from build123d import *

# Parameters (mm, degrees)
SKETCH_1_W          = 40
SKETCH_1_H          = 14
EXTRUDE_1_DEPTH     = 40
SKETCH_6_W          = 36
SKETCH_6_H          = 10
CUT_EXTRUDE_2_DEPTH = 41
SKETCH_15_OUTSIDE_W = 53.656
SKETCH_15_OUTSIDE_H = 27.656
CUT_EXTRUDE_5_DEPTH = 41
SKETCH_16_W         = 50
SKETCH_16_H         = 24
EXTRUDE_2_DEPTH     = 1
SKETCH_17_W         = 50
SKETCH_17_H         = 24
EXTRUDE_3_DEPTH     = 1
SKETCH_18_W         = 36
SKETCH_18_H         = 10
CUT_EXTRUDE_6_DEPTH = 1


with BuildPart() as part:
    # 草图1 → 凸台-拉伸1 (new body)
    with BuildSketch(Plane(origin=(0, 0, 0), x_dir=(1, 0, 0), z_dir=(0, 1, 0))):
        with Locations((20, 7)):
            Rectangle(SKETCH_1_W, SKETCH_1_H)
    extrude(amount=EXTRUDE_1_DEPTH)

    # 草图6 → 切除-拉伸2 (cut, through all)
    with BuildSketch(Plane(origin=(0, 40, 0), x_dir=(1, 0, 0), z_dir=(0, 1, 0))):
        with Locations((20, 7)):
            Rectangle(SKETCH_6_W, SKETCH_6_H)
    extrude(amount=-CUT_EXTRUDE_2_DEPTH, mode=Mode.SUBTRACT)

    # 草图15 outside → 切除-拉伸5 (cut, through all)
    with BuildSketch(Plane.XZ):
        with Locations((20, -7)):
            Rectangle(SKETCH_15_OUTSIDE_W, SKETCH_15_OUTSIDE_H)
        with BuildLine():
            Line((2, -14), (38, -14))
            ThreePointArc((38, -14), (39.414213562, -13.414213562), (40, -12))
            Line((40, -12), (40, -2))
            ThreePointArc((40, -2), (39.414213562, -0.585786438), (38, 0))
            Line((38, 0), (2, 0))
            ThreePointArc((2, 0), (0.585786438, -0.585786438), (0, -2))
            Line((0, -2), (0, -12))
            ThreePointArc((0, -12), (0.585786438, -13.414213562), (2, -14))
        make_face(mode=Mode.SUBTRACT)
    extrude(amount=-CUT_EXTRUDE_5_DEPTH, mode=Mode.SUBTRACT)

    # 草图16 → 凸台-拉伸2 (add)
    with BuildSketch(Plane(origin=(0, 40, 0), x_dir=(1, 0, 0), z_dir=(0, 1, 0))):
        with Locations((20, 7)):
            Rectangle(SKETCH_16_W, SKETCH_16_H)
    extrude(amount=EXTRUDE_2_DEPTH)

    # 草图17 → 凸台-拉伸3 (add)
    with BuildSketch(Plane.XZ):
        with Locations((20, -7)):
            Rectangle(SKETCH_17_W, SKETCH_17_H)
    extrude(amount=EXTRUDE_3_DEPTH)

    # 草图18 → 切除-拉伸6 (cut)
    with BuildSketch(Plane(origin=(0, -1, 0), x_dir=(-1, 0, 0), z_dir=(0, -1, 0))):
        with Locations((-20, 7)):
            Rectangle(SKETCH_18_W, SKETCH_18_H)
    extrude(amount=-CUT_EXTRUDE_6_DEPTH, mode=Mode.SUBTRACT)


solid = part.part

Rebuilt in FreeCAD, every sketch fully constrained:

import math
import FreeCAD as App
import Part
import Sketcher

V = App.Vector

doc = App.newDocument("Part")
body = doc.addObject("PartDesign::Body", "Body")

sketch1 = doc.addObject("Sketcher::SketchObject", "Sketch")
body.addObject(sketch1)
sketch1.AttachmentSupport = (doc.XZ_Plane, [""])
sketch1.MapMode = "FlatFace"
sketch1.addGeometry([
    Part.LineSegment(V(0, -14, 0), V(0, 0, 0)),
    Part.LineSegment(V(0, 0, 0), V(40, 0, 0)),
    Part.LineSegment(V(40, 0, 0), V(40, -14, 0)),
    Part.LineSegment(V(40, -14, 0), V(0, -14, 0)),
], False)
sketch1.addConstraint([
    Sketcher.Constraint("Coincident", 0, 2, 1, 1),
    Sketcher.Constraint("Coincident", 1, 2, 2, 1),
    Sketcher.Constraint("Coincident", 2, 2, 3, 1),
    Sketcher.Constraint("Coincident", 3, 2, 0, 1),
    Sketcher.Constraint("Vertical", 0),
    Sketcher.Constraint("Horizontal", 1),
    Sketcher.Constraint("Vertical", 2),
    Sketcher.Constraint("Horizontal", 3),
    Sketcher.Constraint("Coincident", 0, 2, -1, 1),
    Sketcher.Constraint("DistanceX", 1, 1, 1, 2, 40.0),
    Sketcher.Constraint("DistanceY", 0, 1, 0, 2, 14.0),
])
pad1 = doc.addObject("PartDesign::Pad", "Pad")
body.addObject(pad1)
pad1.Profile = sketch1
pad1.Length = 40
pad1.Reversed = True

sketch2 = doc.addObject("Sketcher::SketchObject", "Sketch001")
body.addObject(sketch2)
sketch2.AttachmentSupport = (doc.XZ_Plane, [""])
sketch2.MapMode = "FlatFace"
sketch2.AttachmentOffset = App.Placement(V(0, 0, -40), App.Rotation())
sketch2.addGeometry([
    Part.LineSegment(V(2, -12, 0), V(2, -2, 0)),
    Part.LineSegment(V(2, -2, 0), V(38, -2, 0)),
    Part.LineSegment(V(38, -2, 0), V(38, -12, 0)),
    Part.LineSegment(V(38, -12, 0), V(2, -12, 0)),
], False)
sketch2.addConstraint([
    Sketcher.Constraint("Coincident", 0, 2, 1, 1),
    Sketcher.Constraint("Coincident", 1, 2, 2, 1),
    Sketcher.Constraint("Coincident", 2, 2, 3, 1),
    Sketcher.Constraint("Coincident", 3, 2, 0, 1),
    Sketcher.Constraint("Vertical", 0),
    Sketcher.Constraint("Horizontal", 1),
    Sketcher.Constraint("Vertical", 2),
    Sketcher.Constraint("Horizontal", 3),
    Sketcher.Constraint("DistanceX", 1, 1, 1, 2, 36.0),
    Sketcher.Constraint("DistanceY", 0, 1, 0, 2, 10.0),
    Sketcher.Constraint("DistanceX", -1, 1, 0, 2, 2.0),
    Sketcher.Constraint("DistanceY", 0, 2, -1, 1, 2.0),
])
pocket1 = doc.addObject("PartDesign::Pocket", "Pocket")
body.addObject(pocket1)
pocket1.Profile = sketch2
pocket1.Type = "ThroughAll"
pocket1.Reversed = True

sketch3 = doc.addObject("Sketcher::SketchObject", "Sketch002")
body.addObject(sketch3)
sketch3.AttachmentSupport = (doc.XZ_Plane, [""])
sketch3.MapMode = "FlatFace"
sketch3.addGeometry([
    Part.LineSegment(V(-6.828, 6.828, 0), V(-6.828, -20.828, 0)),
    Part.LineSegment(V(-6.828, -20.828, 0), V(46.828, -20.828, 0)),
    Part.LineSegment(V(46.828, -20.828, 0), V(46.828, 6.828, 0)),
    Part.LineSegment(V(46.828, 6.828, 0), V(-6.828, 6.828, 0)),
    Part.LineSegment(V(38, -14, 0), V(2, -14, 0)),
    Part.ArcOfCircle(Part.Circle(V(2, -12, 0), V(0, 0, 1), 2), math.radians(-180), math.radians(-90)),
    Part.LineSegment(V(0, -12, 0), V(0, -2, 0)),
    Part.ArcOfCircle(Part.Circle(V(2, -2, 0), V(0, 0, 1), 2), math.radians(90), math.radians(180)),
    Part.LineSegment(V(2, 0, 0), V(38, 0, 0)),
    Part.ArcOfCircle(Part.Circle(V(38, -2, 0), V(0, 0, 1), 2), math.radians(0), math.radians(90)),
    Part.LineSegment(V(40, -2, 0), V(40, -12, 0)),
    Part.ArcOfCircle(Part.Circle(V(38, -12, 0), V(0, 0, 1), 2), math.radians(-90), math.radians(0)),
], False)
sketch3.addConstraint([
    Sketcher.Constraint("Coincident", 0, 2, 1, 1),
    Sketcher.Constraint("Coincident", 1, 2, 2, 1),
    Sketcher.Constraint("Coincident", 2, 2, 3, 1),
    Sketcher.Constraint("Coincident", 3, 2, 0, 1),
    Sketcher.Constraint("Tangent", 4, 2, 5, 2),
    Sketcher.Constraint("Tangent", 5, 1, 6, 1),
    Sketcher.Constraint("Tangent", 6, 2, 7, 2),
    Sketcher.Constraint("Tangent", 7, 1, 8, 1),
    Sketcher.Constraint("Tangent", 8, 2, 9, 2),
    Sketcher.Constraint("Tangent", 9, 1, 10, 1),
    Sketcher.Constraint("Tangent", 10, 2, 11, 2),
    Sketcher.Constraint("Tangent", 11, 1, 4, 1),
    Sketcher.Constraint("Vertical", 0),
    Sketcher.Constraint("Horizontal", 1),
    Sketcher.Constraint("Vertical", 2),
    Sketcher.Constraint("Horizontal", 3),
    Sketcher.Constraint("Horizontal", 4),
    Sketcher.Constraint("Vertical", 6),
    Sketcher.Constraint("Horizontal", 8),
    Sketcher.Constraint("Vertical", 10),
    Sketcher.Constraint("Equal", 5, 7),
    Sketcher.Constraint("Equal", 7, 9),
    Sketcher.Constraint("Equal", 9, 11),
    Sketcher.Constraint("PointOnObject", 5, 1, -2),
    Sketcher.Constraint("PointOnObject", 7, 1, -1),
    Sketcher.Constraint("Radius", 5, 2.0),
    Sketcher.Constraint("DistanceX", 4, 2, 4, 1, 36.0),
    Sketcher.Constraint("DistanceY", 6, 1, 6, 2, 10.0),
    Sketcher.Constraint("DistanceX", 1, 1, 1, 2, 53.656),
    Sketcher.Constraint("DistanceY", 0, 2, 0, 1, 27.656),
    Sketcher.Constraint("DistanceX", 0, 2, -1, 1, 6.828),
    Sketcher.Constraint("DistanceY", 0, 2, -1, 1, 20.828),
])
pocket2 = doc.addObject("PartDesign::Pocket", "Pocket001")
body.addObject(pocket2)
pocket2.Profile = sketch3
pocket2.Type = "ThroughAll"

sketch4 = doc.addObject("Sketcher::SketchObject", "Sketch003")
body.addObject(sketch4)
sketch4.AttachmentSupport = (doc.XZ_Plane, [""])
sketch4.MapMode = "FlatFace"
sketch4.AttachmentOffset = App.Placement(V(0, 0, -40), App.Rotation())
sketch4.addGeometry([
    Part.LineSegment(V(-5, -19, 0), V(-5, 5, 0)),
    Part.LineSegment(V(-5, 5, 0), V(45, 5, 0)),
    Part.LineSegment(V(45, 5, 0), V(45, -19, 0)),
    Part.LineSegment(V(45, -19, 0), V(-5, -19, 0)),
], False)
sketch4.addConstraint([
    Sketcher.Constraint("Coincident", 0, 2, 1, 1),
    Sketcher.Constraint("Coincident", 1, 2, 2, 1),
    Sketcher.Constraint("Coincident", 2, 2, 3, 1),
    Sketcher.Constraint("Coincident", 3, 2, 0, 1),
    Sketcher.Constraint("Vertical", 0),
    Sketcher.Constraint("Horizontal", 1),
    Sketcher.Constraint("Vertical", 2),
    Sketcher.Constraint("Horizontal", 3),
    Sketcher.Constraint("DistanceX", 1, 1, 1, 2, 50.0),
    Sketcher.Constraint("DistanceY", 0, 1, 0, 2, 24.0),
    Sketcher.Constraint("DistanceX", 0, 2, -1, 1, 5.0),
    Sketcher.Constraint("DistanceY", -1, 1, 0, 2, 5.0),
])
pad2 = doc.addObject("PartDesign::Pad", "Pad001")
body.addObject(pad2)
pad2.Profile = sketch4
pad2.Length = 1
pad2.Reversed = True

sketch5 = doc.addObject("Sketcher::SketchObject", "Sketch004")
body.addObject(sketch5)
sketch5.AttachmentSupport = (doc.XZ_Plane, [""])
sketch5.MapMode = "FlatFace"
sketch5.addGeometry([
    Part.LineSegment(V(-5, 5, 0), V(-5, -19, 0)),
    Part.LineSegment(V(-5, -19, 0), V(45, -19, 0)),
    Part.LineSegment(V(45, -19, 0), V(45, 5, 0)),
    Part.LineSegment(V(45, 5, 0), V(-5, 5, 0)),
], False)
sketch5.addConstraint([
    Sketcher.Constraint("Coincident", 0, 2, 1, 1),
    Sketcher.Constraint("Coincident", 1, 2, 2, 1),
    Sketcher.Constraint("Coincident", 2, 2, 3, 1),
    Sketcher.Constraint("Coincident", 3, 2, 0, 1),
    Sketcher.Constraint("Vertical", 0),
    Sketcher.Constraint("Horizontal", 1),
    Sketcher.Constraint("Vertical", 2),
    Sketcher.Constraint("Horizontal", 3),
    Sketcher.Constraint("DistanceX", 1, 1, 1, 2, 50.0),
    Sketcher.Constraint("DistanceY", 0, 2, 0, 1, 24.0),
    Sketcher.Constraint("DistanceX", 0, 2, -1, 1, 5.0),
    Sketcher.Constraint("DistanceY", 0, 2, -1, 1, 19.0),
])
pad3 = doc.addObject("PartDesign::Pad", "Pad002")
body.addObject(pad3)
pad3.Profile = sketch5
pad3.Length = 1

sketch6 = doc.addObject("Sketcher::SketchObject", "Sketch005")
body.addObject(sketch6)
sketch6.AttachmentSupport = (doc.XZ_Plane, [""])
sketch6.MapMode = "FlatFace"
sketch6.AttachmentOffset = App.Placement(V(0, 0, 1), App.Rotation())
sketch6.addGeometry([
    Part.LineSegment(V(38, -12, 0), V(38, -2, 0)),
    Part.LineSegment(V(38, -2, 0), V(2, -2, 0)),
    Part.LineSegment(V(2, -2, 0), V(2, -12, 0)),
    Part.LineSegment(V(2, -12, 0), V(38, -12, 0)),
], False)
sketch6.addConstraint([
    Sketcher.Constraint("Coincident", 0, 2, 1, 1),
    Sketcher.Constraint("Coincident", 1, 2, 2, 1),
    Sketcher.Constraint("Coincident", 2, 2, 3, 1),
    Sketcher.Constraint("Coincident", 3, 2, 0, 1),
    Sketcher.Constraint("Vertical", 0),
    Sketcher.Constraint("Horizontal", 1),
    Sketcher.Constraint("Vertical", 2),
    Sketcher.Constraint("Horizontal", 3),
    Sketcher.Constraint("DistanceX", 1, 2, 1, 1, 36.0),
    Sketcher.Constraint("DistanceY", 0, 1, 0, 2, 10.0),
    Sketcher.Constraint("DistanceX", -1, 1, 0, 2, 38.0),
    Sketcher.Constraint("DistanceY", 0, 2, -1, 1, 2.0),
])
pocket3 = doc.addObject("PartDesign::Pocket", "Pocket002")
body.addObject(pocket3)
pocket3.Profile = sketch6
pocket3.Length = 1

doc.recompute()
